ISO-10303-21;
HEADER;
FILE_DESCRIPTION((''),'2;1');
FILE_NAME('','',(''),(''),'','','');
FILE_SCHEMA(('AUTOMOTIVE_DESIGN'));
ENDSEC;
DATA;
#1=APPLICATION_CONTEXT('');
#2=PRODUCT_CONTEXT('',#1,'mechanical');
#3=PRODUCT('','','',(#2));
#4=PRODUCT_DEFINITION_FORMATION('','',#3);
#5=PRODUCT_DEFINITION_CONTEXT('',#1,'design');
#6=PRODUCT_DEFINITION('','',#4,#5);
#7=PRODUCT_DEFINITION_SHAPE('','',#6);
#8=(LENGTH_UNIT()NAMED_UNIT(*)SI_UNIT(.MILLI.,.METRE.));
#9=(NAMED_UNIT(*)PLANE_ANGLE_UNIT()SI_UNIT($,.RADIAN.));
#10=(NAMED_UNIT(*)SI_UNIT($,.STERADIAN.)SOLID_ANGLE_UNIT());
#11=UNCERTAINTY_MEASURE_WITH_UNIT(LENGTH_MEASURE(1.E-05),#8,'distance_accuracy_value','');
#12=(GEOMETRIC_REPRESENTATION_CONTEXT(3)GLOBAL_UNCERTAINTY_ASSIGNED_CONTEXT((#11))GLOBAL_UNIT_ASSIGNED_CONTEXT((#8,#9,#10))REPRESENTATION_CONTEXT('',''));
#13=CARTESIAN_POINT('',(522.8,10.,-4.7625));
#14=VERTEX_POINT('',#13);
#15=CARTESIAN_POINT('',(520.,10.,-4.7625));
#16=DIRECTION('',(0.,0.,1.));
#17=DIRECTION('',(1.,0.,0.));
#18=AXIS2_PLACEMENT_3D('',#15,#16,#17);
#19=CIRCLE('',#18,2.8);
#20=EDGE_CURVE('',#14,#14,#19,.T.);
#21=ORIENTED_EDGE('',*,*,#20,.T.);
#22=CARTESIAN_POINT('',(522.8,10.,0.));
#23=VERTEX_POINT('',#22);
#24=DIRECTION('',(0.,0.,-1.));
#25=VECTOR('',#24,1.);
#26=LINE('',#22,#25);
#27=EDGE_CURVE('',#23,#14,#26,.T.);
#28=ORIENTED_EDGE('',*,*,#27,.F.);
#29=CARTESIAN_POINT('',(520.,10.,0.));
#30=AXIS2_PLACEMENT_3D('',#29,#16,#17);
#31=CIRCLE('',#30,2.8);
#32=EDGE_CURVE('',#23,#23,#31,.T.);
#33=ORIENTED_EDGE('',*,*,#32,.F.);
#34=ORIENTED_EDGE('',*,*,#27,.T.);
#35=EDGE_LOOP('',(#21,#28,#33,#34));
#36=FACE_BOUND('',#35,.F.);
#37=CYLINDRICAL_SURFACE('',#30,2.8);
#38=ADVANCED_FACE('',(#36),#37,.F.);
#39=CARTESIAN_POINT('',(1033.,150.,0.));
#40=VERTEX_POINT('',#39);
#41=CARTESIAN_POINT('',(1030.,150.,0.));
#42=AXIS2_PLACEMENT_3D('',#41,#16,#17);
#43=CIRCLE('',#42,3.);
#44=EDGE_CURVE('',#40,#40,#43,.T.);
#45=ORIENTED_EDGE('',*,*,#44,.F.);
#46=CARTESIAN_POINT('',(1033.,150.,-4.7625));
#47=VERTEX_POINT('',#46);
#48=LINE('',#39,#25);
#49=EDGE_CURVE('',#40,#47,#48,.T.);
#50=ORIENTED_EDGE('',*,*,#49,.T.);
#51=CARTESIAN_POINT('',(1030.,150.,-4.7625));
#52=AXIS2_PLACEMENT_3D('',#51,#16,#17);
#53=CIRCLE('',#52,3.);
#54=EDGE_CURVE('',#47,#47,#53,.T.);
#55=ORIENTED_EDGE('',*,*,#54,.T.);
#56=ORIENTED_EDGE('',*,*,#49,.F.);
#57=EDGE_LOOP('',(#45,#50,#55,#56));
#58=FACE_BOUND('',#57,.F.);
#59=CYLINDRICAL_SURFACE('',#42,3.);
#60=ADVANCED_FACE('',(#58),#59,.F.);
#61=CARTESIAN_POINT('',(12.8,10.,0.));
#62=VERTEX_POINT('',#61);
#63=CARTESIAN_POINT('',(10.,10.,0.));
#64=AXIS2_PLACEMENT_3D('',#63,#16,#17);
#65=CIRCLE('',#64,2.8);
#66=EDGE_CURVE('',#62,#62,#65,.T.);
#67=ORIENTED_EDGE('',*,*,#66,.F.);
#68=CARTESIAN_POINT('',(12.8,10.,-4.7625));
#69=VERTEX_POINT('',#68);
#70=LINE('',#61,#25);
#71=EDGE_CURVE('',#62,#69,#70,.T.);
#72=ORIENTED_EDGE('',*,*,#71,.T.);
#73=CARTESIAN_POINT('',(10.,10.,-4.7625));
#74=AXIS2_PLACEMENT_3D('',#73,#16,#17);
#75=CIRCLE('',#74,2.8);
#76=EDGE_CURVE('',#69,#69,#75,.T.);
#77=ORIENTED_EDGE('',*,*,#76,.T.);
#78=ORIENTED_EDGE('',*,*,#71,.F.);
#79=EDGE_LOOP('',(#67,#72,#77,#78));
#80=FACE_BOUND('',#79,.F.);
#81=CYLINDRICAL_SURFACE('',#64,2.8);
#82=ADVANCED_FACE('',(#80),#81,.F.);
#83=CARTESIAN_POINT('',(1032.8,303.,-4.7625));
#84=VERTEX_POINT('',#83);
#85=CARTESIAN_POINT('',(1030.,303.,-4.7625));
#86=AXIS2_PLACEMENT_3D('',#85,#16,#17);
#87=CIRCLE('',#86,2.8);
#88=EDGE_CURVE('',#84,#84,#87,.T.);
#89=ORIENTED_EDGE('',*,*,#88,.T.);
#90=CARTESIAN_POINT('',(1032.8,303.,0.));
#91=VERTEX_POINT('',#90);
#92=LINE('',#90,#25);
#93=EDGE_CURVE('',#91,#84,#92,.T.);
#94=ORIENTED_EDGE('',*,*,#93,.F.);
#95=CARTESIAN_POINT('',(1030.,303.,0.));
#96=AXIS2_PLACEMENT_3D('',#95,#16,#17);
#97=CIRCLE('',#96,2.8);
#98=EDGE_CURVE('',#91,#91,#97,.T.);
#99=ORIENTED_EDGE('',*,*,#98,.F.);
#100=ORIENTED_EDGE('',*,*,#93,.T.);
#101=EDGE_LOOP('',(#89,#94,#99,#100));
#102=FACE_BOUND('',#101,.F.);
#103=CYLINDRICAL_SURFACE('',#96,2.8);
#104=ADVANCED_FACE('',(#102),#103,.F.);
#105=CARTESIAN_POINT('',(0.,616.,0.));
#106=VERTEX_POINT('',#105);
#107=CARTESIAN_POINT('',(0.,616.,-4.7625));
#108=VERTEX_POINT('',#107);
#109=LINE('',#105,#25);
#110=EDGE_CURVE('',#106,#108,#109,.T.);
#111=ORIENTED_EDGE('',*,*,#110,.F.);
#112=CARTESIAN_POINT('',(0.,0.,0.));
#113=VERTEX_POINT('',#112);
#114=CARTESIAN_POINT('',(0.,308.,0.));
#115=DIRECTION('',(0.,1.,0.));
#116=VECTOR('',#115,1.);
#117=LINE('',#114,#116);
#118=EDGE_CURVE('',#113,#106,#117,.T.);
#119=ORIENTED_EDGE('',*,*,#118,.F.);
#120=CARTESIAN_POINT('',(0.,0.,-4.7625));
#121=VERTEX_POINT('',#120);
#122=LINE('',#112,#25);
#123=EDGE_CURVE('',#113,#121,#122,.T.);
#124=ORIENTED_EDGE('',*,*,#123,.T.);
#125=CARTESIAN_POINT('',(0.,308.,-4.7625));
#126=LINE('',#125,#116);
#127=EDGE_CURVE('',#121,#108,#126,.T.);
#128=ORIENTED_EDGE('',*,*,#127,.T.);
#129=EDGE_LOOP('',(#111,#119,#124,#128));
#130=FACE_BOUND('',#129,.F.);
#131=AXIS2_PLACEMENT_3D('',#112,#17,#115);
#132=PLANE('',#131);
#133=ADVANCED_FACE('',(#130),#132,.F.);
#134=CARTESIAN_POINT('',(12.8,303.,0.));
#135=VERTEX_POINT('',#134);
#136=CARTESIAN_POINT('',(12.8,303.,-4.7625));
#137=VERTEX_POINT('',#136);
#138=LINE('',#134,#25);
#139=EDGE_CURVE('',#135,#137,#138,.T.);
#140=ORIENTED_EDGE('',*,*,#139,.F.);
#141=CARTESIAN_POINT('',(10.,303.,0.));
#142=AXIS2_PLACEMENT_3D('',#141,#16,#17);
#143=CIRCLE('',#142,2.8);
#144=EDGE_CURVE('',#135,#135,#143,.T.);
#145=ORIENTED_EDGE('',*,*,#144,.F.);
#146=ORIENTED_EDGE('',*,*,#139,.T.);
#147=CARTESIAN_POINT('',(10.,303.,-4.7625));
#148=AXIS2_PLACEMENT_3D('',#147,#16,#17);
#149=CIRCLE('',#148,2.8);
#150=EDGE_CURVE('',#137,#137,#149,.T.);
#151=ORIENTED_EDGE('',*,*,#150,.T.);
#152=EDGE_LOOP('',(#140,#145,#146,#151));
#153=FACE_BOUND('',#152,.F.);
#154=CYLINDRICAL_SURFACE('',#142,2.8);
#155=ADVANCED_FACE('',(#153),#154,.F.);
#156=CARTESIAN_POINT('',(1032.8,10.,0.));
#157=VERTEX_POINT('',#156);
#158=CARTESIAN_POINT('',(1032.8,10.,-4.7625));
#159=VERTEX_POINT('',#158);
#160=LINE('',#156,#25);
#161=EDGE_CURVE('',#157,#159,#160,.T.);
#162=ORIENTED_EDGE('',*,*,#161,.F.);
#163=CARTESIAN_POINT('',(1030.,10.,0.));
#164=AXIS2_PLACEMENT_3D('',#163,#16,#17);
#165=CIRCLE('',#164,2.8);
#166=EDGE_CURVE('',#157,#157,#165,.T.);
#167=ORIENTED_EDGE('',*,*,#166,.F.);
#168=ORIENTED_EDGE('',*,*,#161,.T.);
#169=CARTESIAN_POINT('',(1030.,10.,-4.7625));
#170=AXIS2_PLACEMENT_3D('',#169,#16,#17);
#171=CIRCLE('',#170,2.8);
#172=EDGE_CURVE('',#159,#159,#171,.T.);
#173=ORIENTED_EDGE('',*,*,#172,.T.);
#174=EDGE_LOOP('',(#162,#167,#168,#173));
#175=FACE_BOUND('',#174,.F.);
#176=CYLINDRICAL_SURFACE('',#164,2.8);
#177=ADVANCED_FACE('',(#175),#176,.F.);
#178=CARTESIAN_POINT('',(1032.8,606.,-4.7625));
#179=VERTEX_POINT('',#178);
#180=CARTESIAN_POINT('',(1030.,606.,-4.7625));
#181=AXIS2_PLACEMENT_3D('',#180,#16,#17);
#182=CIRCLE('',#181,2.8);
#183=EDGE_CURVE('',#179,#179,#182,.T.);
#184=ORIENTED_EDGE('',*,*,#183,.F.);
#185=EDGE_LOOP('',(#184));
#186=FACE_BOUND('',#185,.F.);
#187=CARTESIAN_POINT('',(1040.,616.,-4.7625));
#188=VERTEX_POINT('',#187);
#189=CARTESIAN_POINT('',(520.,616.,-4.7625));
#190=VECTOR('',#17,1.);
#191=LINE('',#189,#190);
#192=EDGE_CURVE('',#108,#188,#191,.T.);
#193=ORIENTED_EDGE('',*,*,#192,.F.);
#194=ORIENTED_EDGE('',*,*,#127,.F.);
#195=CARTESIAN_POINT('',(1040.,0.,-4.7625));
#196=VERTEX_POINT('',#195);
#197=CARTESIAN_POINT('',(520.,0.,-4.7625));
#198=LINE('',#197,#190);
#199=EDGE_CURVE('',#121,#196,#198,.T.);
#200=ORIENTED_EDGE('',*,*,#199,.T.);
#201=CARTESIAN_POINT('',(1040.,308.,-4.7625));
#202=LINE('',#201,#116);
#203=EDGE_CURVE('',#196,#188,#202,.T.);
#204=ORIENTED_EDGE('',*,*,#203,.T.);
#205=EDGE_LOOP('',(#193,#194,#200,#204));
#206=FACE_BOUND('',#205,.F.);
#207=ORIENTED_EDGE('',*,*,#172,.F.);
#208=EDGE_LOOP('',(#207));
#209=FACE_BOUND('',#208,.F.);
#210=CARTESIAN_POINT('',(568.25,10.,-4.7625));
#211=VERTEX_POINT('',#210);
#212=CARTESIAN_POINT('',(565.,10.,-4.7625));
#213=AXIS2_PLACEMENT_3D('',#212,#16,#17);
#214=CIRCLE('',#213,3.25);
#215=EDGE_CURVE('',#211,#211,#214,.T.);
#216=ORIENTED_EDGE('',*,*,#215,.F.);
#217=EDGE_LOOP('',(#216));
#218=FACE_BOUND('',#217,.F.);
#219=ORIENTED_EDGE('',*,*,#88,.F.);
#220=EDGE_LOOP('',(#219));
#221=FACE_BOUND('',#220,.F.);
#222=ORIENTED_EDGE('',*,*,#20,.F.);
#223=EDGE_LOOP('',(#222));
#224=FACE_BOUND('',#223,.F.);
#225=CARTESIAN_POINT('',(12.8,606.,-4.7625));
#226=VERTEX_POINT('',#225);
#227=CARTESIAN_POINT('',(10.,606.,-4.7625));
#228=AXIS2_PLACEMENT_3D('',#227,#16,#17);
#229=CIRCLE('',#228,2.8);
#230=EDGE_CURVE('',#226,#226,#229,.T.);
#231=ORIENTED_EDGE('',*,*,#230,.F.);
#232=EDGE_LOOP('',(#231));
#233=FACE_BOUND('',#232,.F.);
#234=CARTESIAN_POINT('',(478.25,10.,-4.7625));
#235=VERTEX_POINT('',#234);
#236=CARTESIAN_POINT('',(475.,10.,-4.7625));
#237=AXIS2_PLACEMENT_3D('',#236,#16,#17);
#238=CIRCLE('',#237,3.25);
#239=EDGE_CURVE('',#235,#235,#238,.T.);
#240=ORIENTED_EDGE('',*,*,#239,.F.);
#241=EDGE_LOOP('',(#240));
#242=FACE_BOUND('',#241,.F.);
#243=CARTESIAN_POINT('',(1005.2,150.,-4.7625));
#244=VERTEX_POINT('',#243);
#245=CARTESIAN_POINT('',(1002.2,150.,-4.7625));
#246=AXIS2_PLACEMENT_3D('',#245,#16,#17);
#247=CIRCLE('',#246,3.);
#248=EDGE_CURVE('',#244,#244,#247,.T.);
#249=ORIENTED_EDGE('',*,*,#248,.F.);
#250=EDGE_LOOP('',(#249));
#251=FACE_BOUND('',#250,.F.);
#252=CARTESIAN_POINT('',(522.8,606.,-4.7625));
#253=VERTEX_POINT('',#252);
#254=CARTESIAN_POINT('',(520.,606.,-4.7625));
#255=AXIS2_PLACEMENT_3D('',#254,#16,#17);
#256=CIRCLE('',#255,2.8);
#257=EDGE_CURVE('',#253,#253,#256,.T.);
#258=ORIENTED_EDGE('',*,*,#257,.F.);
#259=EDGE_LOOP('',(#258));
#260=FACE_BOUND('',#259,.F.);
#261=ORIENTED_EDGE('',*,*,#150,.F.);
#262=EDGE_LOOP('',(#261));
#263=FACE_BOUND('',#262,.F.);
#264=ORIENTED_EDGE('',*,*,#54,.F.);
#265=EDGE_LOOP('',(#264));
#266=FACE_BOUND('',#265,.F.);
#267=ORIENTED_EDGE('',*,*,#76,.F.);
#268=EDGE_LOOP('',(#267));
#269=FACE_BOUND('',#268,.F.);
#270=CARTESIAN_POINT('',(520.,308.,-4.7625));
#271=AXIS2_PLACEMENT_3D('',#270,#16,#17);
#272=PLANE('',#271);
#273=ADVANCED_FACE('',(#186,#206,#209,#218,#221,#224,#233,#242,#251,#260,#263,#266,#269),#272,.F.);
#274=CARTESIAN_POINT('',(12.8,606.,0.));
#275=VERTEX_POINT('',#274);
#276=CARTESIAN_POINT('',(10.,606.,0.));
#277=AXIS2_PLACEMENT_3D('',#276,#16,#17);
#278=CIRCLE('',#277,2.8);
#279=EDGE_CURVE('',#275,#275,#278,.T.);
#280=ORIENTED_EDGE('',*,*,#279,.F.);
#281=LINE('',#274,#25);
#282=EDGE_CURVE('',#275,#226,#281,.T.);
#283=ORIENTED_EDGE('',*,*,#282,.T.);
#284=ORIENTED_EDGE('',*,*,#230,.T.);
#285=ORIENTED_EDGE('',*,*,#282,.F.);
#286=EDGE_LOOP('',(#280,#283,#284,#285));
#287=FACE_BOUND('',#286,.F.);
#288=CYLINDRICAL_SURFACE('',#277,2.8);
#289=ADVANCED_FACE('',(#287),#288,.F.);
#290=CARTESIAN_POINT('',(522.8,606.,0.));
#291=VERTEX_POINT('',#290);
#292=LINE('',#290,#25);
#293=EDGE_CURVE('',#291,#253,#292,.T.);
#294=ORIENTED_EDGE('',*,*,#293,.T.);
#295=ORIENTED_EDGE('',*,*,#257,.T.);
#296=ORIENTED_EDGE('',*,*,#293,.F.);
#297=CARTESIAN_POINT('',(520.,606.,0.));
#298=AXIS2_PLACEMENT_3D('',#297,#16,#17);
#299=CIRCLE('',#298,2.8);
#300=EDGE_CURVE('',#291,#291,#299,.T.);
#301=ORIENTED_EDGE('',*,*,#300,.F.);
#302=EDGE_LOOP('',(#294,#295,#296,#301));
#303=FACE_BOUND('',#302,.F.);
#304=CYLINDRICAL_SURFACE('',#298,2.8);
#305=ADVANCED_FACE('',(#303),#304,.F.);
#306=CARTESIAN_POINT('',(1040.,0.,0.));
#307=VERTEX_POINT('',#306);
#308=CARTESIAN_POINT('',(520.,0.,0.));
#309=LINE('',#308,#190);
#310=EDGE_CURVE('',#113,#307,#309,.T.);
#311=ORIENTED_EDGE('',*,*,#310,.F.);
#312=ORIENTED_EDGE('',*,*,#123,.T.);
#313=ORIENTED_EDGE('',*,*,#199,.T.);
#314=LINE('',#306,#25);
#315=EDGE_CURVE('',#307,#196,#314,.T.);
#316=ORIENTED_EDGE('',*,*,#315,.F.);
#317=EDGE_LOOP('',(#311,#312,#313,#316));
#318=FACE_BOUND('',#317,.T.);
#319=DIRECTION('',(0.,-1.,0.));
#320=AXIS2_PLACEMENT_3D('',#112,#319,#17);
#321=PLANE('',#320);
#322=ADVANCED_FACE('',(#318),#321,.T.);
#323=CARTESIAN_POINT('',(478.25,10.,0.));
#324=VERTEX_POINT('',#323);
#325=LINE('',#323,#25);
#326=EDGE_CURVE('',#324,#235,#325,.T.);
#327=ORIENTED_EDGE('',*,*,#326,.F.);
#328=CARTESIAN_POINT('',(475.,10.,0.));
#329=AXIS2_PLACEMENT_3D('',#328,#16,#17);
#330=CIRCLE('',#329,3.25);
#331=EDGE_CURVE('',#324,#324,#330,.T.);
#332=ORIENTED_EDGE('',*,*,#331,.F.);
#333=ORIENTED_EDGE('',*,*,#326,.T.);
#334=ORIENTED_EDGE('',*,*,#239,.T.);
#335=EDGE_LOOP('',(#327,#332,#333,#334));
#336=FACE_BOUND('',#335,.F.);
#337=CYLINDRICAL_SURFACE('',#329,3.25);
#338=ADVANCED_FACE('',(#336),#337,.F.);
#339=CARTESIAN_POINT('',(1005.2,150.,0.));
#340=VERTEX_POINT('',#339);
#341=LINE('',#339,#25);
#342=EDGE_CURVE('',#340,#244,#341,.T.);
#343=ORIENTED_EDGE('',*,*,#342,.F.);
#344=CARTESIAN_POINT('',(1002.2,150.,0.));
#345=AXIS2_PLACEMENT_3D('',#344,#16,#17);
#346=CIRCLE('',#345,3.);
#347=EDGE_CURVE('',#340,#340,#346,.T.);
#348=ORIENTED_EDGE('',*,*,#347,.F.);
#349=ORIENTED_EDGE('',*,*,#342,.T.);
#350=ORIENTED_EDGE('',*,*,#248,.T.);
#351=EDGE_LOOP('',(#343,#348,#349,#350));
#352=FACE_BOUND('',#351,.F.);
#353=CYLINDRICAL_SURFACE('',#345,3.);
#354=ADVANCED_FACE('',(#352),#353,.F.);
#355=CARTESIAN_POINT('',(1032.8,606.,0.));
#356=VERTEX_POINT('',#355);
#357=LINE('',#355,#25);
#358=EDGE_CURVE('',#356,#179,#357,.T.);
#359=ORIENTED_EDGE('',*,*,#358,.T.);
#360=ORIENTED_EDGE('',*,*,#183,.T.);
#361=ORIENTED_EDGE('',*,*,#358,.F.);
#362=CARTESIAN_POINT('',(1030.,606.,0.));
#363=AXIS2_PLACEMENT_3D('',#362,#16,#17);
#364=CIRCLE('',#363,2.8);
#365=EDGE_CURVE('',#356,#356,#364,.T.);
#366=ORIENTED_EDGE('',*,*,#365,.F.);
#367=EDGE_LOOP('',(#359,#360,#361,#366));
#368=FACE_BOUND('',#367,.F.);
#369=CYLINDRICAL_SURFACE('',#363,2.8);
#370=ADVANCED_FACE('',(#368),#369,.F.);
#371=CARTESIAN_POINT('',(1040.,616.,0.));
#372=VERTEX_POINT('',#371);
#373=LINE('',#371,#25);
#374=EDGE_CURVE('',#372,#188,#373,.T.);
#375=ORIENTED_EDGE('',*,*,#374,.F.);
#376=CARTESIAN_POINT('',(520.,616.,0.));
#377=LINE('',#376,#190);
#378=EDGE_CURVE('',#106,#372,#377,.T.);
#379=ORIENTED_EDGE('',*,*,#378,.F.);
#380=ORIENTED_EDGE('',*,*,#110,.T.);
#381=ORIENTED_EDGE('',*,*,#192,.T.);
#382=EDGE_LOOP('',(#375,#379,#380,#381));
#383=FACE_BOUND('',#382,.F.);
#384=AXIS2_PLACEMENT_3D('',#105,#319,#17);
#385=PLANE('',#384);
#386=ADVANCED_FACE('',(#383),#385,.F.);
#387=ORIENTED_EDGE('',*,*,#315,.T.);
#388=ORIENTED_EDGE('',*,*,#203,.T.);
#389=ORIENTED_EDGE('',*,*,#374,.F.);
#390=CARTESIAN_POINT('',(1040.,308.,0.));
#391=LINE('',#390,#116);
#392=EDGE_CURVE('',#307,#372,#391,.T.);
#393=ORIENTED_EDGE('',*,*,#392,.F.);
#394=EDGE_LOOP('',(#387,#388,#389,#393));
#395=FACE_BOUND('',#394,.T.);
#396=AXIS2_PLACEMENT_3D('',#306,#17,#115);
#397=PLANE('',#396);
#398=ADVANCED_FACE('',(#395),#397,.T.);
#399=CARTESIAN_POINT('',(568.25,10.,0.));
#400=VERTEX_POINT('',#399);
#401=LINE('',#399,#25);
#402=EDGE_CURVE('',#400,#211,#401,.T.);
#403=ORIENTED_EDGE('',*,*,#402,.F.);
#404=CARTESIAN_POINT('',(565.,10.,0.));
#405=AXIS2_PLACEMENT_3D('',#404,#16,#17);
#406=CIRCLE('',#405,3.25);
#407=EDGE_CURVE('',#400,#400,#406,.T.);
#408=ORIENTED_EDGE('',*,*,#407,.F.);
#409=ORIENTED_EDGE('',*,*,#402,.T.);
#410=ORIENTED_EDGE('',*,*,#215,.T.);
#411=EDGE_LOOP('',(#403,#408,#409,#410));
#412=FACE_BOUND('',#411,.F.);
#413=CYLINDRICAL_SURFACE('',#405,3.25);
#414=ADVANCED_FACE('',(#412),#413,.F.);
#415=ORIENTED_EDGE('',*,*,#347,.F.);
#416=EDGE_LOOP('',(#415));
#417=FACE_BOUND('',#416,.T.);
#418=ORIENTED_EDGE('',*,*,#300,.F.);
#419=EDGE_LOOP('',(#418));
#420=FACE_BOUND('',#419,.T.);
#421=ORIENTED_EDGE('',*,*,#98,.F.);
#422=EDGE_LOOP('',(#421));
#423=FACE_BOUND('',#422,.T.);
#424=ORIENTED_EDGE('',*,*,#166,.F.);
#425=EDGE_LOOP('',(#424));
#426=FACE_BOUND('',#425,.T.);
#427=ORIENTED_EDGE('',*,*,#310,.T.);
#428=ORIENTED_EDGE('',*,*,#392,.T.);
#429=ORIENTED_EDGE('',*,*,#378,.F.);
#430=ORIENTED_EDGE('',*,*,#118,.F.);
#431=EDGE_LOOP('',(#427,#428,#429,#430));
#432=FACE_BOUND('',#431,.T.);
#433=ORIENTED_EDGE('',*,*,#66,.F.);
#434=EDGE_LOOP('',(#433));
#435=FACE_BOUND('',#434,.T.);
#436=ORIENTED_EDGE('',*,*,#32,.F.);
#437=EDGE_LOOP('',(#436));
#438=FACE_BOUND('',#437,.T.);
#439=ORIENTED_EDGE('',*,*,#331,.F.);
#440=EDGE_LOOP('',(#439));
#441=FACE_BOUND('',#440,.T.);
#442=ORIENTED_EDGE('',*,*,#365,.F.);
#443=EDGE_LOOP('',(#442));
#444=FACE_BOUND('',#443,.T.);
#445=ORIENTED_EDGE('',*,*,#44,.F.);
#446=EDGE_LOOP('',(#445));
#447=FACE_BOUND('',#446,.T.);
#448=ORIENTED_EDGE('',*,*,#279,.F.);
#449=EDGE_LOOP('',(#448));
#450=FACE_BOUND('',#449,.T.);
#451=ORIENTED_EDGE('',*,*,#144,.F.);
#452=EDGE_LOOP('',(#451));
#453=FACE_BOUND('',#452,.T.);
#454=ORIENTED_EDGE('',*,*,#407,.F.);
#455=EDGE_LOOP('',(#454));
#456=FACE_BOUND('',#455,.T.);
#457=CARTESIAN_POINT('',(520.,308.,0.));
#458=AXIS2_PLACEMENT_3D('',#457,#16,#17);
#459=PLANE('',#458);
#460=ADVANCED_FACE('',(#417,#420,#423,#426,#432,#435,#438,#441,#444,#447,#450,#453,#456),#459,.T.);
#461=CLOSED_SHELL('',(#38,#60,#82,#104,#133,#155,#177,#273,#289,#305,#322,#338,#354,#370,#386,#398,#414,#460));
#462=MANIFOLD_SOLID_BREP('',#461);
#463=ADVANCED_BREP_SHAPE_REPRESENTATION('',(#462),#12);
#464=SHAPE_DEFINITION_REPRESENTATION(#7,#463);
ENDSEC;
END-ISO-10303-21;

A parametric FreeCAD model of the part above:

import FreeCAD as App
import Part
import Sketcher
Q = App.Units.Quantity


def add_polygon(sketch, points):
    """Adds a closed chain of lines whose ends are joined by coincident constraints."""
    first, n = sketch.GeometryCount, len(points)
    for a, b in zip(points, points[1:] + points[:1]):
        sketch.addGeometry(Part.LineSegment(App.Vector(*a, 0), App.Vector(*b, 0)), False)
    for i in range(n):
        sketch.addConstraint(Sketcher.Constraint("Coincident", first + i, 2, first + (i + 1) % n, 1))

doc = App.newDocument("Part")
body = doc.addObject("PartDesign::Body", "Body")

sketch1 = body.newObject("Sketcher::SketchObject", "Sketch")
sketch1.AttachmentSupport = (doc.getObject("XY_Plane"), [""])
sketch1.MapMode = "FlatFace"
add_polygon(sketch1, [(0, 616), (0, 0), (1040, 0), (1040, 616)])
sketch1.addGeometry(Part.Circle(App.Vector(10, 10, 0), App.Vector(0, 0, 1), 2.8), False)
sketch1.addGeometry(Part.Circle(App.Vector(475, 10, 0), App.Vector(0, 0, 1), 3.25), False)
sketch1.addGeometry(Part.Circle(App.Vector(520, 10, 0), App.Vector(0, 0, 1), 2.8), False)
sketch1.addGeometry(Part.Circle(App.Vector(10, 303, 0), App.Vector(0, 0, 1), 2.8), False)
sketch1.addGeometry(Part.Circle(App.Vector(565, 10, 0), App.Vector(0, 0, 1), 3.25), False)
sketch1.addGeometry(Part.Circle(App.Vector(1030, 10, 0), App.Vector(0, 0, 1), 2.8), False)
sketch1.addGeometry(Part.Circle(App.Vector(1002.2, 150, 0), App.Vector(0, 0, 1), 3), False)
sketch1.addGeometry(Part.Circle(App.Vector(1030, 150, 0), App.Vector(0, 0, 1), 3), False)
sketch1.addGeometry(Part.Circle(App.Vector(1030, 303, 0), App.Vector(0, 0, 1), 2.8), False)
sketch1.addGeometry(Part.Circle(App.Vector(10, 606, 0), App.Vector(0, 0, 1), 2.8), False)
sketch1.addGeometry(Part.Circle(App.Vector(520, 606, 0), App.Vector(0, 0, 1), 2.8), False)
sketch1.addGeometry(Part.Circle(App.Vector(1030, 606, 0), App.Vector(0, 0, 1), 2.8), False)
sketch1.addConstraint([
    Sketcher.Constraint("Vertical", 0),
    Sketcher.Constraint("Horizontal", 1),
    Sketcher.Constraint("Vertical", 2),
    Sketcher.Constraint("Horizontal", 3),
    Sketcher.Constraint("Coincident", 0, 2, -1, 1),
    Sketcher.Constraint("Equal", 4, 6),
    Sketcher.Constraint("Equal", 6, 7),
    Sketcher.Constraint("Equal", 5, 8),
    Sketcher.Constraint("Equal", 7, 9),
    Sketcher.Constraint("Equal", 10, 11),
    Sketcher.Constraint("Equal", 9, 12),
    Sketcher.Constraint("Equal", 12, 13),
    Sketcher.Constraint("Equal", 13, 14),
    Sketcher.Constraint("Equal", 14, 15),
    Sketcher.Constraint("Horizontal", 4, 3, 5, 3),
    Sketcher.Constraint("Horizontal", 5, 3, 6, 3),
    Sketcher.Constraint("Horizontal", 6, 3, 8, 3),
    Sketcher.Constraint("Horizontal", 8, 3, 9, 3),
    Sketcher.Constraint("Horizontal", 10, 3, 11, 3),
    Sketcher.Constraint("Horizontal", 7, 3, 12, 3),
    Sketcher.Constraint("Horizontal", 13, 3, 14, 3),
    Sketcher.Constraint("Horizontal", 14, 3, 15, 3),
    Sketcher.Constraint("Vertical", 4, 3, 7, 3),
    Sketcher.Constraint("Vertical", 9, 3, 11, 3),
    Sketcher.Constraint("Vertical", 11, 3, 12, 3),
    Sketcher.Constraint("Vertical", 7, 3, 13, 3),
    Sketcher.Constraint("Vertical", 6, 3, 14, 3),
    Sketcher.Constraint("Vertical", 12, 3, 15, 3),
    Sketcher.Constraint("Diameter", 10, Q("6 mm")),
    Sketcher.Constraint("Diameter", 4, Q("5.6 mm")),
    Sketcher.Constraint("Diameter", 5, Q("6.5 mm")),
    Sketcher.Constraint("DistanceX", 1, 1, 1, 2, Q("1040 mm")),
    Sketcher.Constraint("DistanceY", 0, 2, 0, 1, Q("616 mm")),
    Sketcher.Constraint("DistanceX", -1, 1, 4, 3, Q("10 mm")),
    Sketcher.Constraint("DistanceY", -1, 1, 4, 3, Q("10 mm")),
    Sketcher.Constraint("DistanceX", -1, 1, 5, 3, Q("475 mm")),
    Sketcher.Constraint("DistanceX", -1, 1, 6, 3, Q("520 mm")),
    Sketcher.Constraint("DistanceY", -1, 1, 7, 3, Q("303 mm")),
    Sketcher.Constraint("DistanceX", -1, 1, 8, 3, Q("565 mm")),
    Sketcher.Constraint("DistanceX", -1, 1, 9, 3, Q("1030 mm")),
    Sketcher.Constraint("DistanceY", -1, 1, 10, 3, Q("150 mm")),
    Sketcher.Constraint("DistanceY", -1, 1, 13, 3, Q("606 mm")),
    Sketcher.Constraint("DistanceX", -1, 1, 10, 3, Q("1002.2 mm")),
])
pad1 = body.newObject("PartDesign::Pad", "Pad")
pad1.Profile = sketch1
pad1.Length = 4.7625
pad1.Reversed = True

doc.recompute()
